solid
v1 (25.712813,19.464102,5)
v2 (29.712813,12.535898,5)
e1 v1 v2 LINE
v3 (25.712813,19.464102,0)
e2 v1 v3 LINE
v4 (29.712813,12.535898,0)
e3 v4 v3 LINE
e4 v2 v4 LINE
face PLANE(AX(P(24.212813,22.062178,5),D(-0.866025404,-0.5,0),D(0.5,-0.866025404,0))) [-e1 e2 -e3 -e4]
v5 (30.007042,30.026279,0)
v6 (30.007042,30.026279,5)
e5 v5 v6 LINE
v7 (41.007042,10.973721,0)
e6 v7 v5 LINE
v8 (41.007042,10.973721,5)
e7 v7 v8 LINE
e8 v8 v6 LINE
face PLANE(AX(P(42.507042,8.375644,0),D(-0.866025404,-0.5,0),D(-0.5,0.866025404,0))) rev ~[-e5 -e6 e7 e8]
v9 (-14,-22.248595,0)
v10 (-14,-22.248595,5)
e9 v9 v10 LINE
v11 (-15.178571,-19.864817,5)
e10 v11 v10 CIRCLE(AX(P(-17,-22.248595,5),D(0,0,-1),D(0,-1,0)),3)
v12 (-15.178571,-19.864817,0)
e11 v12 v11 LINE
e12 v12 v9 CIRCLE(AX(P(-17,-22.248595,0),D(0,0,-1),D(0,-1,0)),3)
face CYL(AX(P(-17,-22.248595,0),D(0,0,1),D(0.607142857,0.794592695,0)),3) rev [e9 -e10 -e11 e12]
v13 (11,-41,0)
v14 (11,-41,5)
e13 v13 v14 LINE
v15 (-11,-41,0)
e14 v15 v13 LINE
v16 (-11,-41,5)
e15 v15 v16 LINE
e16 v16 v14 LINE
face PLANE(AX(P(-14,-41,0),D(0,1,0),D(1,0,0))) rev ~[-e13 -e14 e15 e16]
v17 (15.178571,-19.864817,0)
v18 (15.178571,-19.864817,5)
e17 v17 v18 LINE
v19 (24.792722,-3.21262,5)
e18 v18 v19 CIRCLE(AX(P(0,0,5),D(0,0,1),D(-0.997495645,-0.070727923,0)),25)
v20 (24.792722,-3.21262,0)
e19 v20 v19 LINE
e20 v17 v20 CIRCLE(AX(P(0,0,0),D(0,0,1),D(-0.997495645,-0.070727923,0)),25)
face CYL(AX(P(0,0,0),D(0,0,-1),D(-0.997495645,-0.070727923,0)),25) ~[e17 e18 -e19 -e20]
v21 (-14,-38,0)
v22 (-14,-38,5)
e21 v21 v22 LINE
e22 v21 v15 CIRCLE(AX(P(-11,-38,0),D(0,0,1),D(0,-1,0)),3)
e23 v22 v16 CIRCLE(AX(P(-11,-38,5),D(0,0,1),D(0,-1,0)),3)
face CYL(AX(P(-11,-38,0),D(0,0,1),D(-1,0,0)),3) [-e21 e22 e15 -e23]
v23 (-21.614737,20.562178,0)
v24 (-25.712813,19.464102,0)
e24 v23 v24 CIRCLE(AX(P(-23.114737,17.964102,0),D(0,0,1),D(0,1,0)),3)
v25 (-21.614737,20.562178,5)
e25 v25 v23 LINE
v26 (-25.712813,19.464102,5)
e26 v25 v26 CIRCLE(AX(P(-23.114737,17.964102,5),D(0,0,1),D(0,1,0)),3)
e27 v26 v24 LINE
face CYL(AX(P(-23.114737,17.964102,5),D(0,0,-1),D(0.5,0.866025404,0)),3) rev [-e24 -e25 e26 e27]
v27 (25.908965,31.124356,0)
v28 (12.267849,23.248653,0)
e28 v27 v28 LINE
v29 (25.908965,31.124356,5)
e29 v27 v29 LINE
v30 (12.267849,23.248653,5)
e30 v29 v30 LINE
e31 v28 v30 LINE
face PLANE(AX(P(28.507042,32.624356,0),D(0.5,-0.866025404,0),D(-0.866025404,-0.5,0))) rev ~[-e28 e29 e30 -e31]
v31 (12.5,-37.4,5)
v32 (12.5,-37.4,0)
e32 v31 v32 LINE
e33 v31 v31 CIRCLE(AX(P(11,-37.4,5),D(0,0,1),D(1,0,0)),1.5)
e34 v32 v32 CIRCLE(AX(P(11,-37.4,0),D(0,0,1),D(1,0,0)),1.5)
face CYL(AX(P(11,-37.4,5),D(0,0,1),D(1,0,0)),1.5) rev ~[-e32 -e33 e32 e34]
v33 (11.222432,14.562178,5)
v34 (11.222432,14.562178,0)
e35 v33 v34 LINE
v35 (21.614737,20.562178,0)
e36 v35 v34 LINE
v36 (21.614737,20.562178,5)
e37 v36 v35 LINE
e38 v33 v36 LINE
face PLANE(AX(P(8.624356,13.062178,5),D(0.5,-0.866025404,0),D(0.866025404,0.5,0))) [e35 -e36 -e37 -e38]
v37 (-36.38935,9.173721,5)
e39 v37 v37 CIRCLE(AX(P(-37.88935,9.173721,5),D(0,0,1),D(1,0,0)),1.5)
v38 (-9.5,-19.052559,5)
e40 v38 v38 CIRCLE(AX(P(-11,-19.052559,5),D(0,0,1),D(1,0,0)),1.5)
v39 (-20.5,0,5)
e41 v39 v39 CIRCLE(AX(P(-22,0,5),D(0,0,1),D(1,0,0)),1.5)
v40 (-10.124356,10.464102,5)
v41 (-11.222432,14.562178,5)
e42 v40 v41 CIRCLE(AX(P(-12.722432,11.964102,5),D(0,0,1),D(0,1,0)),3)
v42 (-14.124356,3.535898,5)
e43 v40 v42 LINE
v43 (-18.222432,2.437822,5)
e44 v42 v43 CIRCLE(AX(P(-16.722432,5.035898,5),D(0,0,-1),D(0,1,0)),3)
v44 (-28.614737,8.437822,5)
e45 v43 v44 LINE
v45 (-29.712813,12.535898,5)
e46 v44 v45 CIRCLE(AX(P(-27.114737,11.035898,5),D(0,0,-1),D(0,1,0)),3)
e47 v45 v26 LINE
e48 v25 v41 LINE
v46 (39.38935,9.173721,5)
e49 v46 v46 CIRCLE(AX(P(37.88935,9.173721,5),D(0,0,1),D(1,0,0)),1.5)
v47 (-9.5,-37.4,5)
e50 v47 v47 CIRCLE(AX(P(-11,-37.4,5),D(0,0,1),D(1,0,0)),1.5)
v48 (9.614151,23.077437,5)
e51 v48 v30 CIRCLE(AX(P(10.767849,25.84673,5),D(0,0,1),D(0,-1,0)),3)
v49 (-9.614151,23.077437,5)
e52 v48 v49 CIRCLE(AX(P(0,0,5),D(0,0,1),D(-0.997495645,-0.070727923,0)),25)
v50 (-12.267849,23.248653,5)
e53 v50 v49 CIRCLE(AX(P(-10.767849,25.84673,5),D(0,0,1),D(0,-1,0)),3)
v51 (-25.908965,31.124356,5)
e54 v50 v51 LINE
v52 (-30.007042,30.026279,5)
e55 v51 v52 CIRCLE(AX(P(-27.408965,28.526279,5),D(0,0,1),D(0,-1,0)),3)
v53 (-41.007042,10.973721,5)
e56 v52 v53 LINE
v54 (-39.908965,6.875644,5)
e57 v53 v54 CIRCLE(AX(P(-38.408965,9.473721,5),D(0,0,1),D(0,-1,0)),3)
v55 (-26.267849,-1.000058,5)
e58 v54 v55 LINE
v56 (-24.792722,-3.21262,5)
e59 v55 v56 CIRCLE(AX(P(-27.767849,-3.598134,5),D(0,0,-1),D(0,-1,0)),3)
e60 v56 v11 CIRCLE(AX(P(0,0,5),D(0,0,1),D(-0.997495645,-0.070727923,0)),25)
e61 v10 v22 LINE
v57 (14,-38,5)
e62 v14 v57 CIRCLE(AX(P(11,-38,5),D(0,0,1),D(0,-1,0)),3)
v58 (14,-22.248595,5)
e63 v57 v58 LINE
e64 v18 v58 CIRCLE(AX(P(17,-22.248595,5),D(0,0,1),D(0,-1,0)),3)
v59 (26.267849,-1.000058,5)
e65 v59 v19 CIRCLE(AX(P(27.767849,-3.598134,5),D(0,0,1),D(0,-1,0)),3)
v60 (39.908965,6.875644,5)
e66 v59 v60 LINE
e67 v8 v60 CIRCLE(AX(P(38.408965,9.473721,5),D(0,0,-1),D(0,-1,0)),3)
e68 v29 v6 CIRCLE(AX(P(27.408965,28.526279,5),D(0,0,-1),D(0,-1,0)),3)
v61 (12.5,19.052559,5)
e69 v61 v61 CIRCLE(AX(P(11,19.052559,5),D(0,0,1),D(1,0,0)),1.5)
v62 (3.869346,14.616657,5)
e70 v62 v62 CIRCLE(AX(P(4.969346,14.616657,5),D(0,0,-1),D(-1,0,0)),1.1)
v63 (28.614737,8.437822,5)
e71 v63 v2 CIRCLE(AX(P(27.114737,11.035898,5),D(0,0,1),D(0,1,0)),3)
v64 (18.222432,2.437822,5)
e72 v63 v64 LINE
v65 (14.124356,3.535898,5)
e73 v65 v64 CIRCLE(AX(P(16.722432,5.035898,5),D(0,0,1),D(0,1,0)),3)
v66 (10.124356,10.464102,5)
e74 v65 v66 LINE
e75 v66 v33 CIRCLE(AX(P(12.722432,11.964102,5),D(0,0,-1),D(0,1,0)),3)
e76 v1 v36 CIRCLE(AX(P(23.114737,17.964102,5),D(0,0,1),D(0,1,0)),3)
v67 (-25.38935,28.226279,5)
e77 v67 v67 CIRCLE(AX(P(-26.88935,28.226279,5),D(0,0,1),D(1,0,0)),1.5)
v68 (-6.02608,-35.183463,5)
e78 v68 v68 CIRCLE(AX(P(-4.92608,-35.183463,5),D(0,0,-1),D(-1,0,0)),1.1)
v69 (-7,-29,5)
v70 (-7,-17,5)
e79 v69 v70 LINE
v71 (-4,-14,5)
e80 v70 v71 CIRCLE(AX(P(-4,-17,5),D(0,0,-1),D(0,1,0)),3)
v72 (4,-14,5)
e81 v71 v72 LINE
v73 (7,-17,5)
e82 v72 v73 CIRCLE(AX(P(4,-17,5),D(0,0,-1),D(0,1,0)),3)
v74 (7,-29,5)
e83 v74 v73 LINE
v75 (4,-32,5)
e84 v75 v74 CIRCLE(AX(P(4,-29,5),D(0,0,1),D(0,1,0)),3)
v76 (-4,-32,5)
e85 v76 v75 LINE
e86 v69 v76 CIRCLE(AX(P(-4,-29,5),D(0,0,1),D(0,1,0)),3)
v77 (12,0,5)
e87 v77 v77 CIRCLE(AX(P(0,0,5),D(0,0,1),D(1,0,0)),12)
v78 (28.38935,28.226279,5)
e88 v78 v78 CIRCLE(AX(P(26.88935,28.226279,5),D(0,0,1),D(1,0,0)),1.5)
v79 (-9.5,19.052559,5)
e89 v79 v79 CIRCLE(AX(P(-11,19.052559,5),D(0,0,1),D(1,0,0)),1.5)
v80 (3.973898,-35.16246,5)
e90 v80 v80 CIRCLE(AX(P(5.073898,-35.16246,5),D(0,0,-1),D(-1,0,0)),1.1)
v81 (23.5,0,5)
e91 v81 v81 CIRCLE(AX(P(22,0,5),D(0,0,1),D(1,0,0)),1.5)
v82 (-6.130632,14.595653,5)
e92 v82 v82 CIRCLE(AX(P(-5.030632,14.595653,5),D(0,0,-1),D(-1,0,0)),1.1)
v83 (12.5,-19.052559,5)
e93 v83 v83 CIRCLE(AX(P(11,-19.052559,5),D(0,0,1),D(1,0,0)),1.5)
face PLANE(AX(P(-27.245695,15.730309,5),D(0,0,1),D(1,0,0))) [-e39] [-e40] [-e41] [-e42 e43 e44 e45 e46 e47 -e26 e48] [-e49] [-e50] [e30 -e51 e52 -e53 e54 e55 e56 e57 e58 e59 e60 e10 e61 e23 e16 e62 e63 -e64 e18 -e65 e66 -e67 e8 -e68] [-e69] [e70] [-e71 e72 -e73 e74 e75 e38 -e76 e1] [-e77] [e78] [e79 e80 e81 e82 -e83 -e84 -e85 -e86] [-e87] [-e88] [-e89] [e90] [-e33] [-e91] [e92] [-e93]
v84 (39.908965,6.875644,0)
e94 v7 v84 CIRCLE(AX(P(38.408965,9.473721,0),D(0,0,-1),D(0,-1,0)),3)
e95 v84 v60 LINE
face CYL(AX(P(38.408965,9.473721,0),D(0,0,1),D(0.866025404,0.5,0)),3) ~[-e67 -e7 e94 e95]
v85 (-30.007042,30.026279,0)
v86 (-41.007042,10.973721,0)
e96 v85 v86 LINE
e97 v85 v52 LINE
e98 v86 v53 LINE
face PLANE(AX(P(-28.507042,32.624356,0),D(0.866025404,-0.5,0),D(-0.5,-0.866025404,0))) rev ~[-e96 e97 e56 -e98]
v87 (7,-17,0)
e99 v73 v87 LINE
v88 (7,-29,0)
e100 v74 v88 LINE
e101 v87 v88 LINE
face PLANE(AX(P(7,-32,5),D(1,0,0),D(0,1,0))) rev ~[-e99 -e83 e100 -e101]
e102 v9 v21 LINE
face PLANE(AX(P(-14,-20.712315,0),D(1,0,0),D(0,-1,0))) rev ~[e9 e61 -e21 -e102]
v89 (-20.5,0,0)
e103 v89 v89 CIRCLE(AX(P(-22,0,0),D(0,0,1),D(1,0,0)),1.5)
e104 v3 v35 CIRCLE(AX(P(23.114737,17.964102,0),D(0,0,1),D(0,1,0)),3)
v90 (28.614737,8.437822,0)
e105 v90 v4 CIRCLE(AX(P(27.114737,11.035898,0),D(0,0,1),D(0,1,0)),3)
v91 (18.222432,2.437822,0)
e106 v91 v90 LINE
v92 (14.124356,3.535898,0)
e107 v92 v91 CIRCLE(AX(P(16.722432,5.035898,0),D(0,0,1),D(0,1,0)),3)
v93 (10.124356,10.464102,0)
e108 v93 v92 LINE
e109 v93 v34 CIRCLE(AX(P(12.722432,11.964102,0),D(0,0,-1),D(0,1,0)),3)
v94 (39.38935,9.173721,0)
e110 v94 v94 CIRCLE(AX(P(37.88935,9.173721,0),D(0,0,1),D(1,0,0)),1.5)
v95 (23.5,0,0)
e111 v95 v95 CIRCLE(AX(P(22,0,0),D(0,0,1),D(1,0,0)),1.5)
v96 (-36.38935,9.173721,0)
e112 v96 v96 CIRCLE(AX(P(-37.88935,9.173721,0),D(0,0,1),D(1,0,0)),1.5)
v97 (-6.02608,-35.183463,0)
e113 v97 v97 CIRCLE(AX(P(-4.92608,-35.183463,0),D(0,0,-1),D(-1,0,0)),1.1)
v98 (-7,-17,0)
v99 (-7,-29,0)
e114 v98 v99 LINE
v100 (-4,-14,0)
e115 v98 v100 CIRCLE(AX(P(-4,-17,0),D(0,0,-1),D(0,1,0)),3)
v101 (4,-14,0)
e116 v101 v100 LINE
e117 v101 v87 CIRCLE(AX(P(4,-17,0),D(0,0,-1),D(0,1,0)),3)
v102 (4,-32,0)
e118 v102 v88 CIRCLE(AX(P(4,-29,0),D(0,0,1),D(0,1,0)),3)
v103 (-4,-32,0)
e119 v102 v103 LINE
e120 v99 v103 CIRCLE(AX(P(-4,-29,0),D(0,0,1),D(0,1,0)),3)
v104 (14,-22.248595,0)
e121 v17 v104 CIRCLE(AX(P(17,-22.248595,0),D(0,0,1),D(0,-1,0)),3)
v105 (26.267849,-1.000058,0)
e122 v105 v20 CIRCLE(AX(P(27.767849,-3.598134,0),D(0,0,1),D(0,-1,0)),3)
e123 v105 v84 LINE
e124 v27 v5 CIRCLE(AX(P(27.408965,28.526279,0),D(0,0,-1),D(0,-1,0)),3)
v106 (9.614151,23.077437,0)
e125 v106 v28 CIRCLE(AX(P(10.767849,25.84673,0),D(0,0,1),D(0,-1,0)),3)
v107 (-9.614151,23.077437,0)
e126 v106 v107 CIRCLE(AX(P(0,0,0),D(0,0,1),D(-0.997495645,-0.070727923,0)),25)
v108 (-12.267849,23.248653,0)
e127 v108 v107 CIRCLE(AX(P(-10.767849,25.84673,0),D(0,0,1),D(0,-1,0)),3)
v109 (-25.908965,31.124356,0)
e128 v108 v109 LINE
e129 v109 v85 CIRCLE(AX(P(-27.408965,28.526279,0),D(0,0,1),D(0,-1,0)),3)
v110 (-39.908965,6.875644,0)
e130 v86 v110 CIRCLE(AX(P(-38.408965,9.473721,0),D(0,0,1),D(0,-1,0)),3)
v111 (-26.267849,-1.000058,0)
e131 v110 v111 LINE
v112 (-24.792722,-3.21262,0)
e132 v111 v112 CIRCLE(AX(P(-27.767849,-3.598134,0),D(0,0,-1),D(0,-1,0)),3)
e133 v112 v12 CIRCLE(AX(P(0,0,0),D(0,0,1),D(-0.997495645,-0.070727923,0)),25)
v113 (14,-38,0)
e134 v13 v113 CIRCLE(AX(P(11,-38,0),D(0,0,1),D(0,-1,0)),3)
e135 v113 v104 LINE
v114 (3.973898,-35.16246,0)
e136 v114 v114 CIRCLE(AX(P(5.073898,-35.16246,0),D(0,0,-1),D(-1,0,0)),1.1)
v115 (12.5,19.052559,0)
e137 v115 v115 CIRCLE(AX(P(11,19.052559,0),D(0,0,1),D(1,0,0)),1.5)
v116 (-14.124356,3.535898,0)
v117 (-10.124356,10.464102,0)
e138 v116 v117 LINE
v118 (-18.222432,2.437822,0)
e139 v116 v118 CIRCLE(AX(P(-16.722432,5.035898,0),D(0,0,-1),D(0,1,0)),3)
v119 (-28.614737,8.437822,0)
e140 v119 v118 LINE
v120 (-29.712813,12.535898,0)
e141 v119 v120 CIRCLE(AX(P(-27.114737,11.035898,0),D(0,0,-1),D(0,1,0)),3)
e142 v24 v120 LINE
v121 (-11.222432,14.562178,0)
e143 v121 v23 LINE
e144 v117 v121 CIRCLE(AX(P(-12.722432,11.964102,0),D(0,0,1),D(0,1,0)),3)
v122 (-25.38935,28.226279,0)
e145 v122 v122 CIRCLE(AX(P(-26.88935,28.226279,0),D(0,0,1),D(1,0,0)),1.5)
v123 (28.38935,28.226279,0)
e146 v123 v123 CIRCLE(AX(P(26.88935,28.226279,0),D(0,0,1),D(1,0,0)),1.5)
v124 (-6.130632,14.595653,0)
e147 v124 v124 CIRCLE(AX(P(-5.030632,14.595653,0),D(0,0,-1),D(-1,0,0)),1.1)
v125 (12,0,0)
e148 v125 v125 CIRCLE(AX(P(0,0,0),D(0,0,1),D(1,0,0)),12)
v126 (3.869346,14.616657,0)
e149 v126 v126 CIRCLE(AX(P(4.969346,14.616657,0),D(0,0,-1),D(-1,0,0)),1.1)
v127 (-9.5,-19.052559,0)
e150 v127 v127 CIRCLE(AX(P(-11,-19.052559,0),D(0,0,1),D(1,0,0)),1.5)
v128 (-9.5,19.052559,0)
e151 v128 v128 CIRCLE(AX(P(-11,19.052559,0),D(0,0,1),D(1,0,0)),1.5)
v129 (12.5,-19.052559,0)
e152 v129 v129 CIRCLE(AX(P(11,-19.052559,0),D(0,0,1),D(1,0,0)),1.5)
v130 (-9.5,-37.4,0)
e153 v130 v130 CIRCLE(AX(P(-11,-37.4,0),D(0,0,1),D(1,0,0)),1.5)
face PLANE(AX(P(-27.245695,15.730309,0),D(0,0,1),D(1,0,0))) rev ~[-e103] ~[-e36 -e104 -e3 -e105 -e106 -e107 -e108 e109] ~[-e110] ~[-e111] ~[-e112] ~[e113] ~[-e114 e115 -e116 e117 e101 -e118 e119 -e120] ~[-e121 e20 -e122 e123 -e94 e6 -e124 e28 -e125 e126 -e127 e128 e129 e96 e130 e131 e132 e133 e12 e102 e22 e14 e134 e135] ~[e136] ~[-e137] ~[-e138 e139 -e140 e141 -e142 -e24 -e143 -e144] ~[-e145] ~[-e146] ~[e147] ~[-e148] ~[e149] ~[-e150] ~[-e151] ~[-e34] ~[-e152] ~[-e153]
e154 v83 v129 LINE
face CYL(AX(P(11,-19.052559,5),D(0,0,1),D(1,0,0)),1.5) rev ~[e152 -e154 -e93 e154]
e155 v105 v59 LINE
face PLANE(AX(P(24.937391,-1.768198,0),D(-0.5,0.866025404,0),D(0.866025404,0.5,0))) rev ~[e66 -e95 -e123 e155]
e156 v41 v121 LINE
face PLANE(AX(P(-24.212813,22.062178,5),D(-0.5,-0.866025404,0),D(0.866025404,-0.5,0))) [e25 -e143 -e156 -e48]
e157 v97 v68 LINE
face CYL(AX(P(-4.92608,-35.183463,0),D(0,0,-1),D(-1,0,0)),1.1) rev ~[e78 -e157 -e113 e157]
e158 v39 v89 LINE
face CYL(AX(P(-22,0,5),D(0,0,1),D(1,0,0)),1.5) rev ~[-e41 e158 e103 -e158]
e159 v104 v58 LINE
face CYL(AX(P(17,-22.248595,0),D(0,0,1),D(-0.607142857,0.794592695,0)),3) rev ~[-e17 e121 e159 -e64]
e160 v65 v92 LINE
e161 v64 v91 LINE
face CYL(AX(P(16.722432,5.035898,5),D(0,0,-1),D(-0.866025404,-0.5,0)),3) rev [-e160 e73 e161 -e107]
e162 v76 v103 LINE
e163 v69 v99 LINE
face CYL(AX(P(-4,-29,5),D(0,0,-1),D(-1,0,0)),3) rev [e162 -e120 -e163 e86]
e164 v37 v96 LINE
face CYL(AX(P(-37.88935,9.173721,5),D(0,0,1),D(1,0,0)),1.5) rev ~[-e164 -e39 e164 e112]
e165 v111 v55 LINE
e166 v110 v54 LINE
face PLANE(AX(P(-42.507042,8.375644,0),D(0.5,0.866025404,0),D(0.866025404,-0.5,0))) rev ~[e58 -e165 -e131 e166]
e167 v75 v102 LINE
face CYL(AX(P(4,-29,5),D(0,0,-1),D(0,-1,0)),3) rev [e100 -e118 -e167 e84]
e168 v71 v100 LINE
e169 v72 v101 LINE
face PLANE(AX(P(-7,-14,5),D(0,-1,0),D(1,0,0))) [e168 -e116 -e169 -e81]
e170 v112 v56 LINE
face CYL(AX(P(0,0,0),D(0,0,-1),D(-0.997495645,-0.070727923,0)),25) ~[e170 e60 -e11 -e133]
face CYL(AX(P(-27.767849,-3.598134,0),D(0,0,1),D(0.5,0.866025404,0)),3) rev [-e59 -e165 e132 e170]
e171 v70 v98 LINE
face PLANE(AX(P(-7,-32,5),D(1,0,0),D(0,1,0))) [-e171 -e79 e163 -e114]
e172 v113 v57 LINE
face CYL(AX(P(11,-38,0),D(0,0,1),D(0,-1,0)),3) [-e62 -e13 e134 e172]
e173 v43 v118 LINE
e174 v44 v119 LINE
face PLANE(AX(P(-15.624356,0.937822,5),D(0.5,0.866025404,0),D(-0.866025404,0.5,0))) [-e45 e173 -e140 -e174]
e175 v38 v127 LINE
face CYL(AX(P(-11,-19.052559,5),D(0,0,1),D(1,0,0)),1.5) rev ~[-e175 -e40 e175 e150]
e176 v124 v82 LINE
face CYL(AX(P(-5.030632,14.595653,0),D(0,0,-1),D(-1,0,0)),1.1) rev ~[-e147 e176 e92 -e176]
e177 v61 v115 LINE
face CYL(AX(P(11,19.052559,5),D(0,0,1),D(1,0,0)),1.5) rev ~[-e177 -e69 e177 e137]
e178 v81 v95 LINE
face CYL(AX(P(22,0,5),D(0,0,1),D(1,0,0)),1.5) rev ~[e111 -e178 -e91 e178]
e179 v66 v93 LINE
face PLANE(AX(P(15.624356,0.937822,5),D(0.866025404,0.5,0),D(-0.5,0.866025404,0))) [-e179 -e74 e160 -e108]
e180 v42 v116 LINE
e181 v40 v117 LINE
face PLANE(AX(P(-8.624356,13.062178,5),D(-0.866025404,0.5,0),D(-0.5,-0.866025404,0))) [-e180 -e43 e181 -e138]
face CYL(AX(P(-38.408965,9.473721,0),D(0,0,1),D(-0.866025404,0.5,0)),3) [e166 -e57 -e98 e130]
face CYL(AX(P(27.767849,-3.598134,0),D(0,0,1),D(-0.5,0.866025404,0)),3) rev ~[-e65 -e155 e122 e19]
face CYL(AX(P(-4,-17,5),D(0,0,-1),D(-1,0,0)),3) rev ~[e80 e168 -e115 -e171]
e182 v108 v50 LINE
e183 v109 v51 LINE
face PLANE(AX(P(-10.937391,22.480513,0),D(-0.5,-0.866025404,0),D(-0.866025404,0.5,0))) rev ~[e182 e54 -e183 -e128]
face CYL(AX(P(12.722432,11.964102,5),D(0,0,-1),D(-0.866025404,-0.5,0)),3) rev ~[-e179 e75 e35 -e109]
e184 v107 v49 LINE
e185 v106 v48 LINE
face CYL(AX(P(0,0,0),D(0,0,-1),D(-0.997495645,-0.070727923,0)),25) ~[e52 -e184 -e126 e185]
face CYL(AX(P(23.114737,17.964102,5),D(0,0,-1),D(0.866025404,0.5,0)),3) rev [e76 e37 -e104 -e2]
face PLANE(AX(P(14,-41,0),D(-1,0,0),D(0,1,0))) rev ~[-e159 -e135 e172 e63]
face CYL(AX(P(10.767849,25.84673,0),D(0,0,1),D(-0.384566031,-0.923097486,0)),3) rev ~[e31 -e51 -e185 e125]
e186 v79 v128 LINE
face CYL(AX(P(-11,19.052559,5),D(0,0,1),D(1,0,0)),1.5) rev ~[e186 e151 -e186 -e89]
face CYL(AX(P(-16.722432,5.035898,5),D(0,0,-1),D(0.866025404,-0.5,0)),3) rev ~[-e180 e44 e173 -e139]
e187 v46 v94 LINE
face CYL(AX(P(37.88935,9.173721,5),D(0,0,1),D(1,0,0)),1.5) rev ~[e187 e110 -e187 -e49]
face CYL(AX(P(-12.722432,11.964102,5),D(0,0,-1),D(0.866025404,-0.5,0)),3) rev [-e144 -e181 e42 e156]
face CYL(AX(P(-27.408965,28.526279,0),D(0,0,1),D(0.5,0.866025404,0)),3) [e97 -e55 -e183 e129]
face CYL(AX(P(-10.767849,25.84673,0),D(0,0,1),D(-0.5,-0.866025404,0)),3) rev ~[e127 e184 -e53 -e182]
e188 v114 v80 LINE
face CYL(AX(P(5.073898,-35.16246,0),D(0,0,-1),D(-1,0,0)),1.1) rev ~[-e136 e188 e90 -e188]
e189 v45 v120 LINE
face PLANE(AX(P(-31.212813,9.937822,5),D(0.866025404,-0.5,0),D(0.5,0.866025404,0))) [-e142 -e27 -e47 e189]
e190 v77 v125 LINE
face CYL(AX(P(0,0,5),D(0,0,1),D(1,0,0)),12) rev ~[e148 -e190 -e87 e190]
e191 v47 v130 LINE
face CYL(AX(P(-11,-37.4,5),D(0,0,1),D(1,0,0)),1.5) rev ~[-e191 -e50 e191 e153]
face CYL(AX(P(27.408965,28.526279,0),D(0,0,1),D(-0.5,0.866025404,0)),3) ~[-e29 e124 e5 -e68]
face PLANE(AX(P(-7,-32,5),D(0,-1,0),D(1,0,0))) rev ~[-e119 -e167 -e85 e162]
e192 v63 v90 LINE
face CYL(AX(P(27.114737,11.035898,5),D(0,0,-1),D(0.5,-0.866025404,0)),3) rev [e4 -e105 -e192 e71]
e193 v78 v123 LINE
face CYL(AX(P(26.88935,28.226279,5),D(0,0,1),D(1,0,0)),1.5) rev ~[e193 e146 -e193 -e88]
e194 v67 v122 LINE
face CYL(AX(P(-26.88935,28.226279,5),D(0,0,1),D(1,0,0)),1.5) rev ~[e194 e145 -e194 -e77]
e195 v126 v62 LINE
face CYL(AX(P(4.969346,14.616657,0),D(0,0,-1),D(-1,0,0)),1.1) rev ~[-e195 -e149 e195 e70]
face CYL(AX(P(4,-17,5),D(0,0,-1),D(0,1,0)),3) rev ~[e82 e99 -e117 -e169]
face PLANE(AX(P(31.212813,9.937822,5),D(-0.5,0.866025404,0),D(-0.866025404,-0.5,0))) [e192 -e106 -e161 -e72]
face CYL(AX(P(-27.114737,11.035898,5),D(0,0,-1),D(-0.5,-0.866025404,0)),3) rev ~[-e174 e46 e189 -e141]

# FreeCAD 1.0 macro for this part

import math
import FreeCAD as App
import Part
import Sketcher
from FreeCAD import Vector
Q = App.Units.Quantity


def edges_at(feature, points):
    """Names of the edges that pass closest to the given points."""
    edges = feature.Shape.Edges
    near = lambda p: min(range(len(edges)), key=lambda i: edges[i].distToShape(Part.Vertex(*p))[0])
    return sorted({f"Edge{near(p) + 1}" for p in points})


def add_polygon(sketch, points):
    """Adds a closed chain of lines whose ends are joined by coincident constraints."""
    first, n = sketch.GeometryCount, len(points)
    for a, b in zip(points, points[1:] + points[:1]):
        sketch.addGeometry(Part.LineSegment(App.Vector(*a, 0), App.Vector(*b, 0)), False)
    for i in range(n):
        sketch.addConstraint(Sketcher.Constraint("Coincident", first + i, 2, first + (i + 1) % n, 1))

doc = App.newDocument("Part")
body = doc.addObject("PartDesign::Body", "Body")

# Sketch on XY plane
sketch1 = body.newObject("Sketcher::SketchObject", "Sketch")
sketch1.AttachmentSupport = (doc.getObject("XY_Plane"), [""])
sketch1.MapMode = "FlatFace"
sketch1.addGeometry(Part.LineSegment(Vector(-10.937391, 22.480513, 0), Vector(-28.507042, 32.624356, 0)), False)
sketch1.addGeometry(Part.LineSegment(Vector(-28.507042, 32.624356, 0), Vector(-42.507042, 8.375644, 0)), False)
sketch1.addGeometry(Part.LineSegment(Vector(-42.507042, 8.375644, 0), Vector(-24.937391, -1.768198, 0)), False)
sketch1.addGeometry(Part.ArcOfCircle(Part.Circle(Vector(0, 0, 0), Vector(0, 0, 1), 25), math.radians(-175.944202), math.radians(-124.055798)), False)
sketch1.addGeometry(Part.LineSegment(Vector(-14, -20.712315, 0), Vector(-14, -41, 0)), False)
sketch1.addGeometry(Part.LineSegment(Vector(-14, -41, 0), Vector(14, -41, 0)), False)
sketch1.addGeometry(Part.LineSegment(Vector(14, -41, 0), Vector(14, -20.712315, 0)), False)
sketch1.addGeometry(Part.ArcOfCircle(Part.Circle(Vector(0, 0, 0), Vector(0, 0, 1), 25), math.radians(-55.944202), math.radians(-4.055798)), False)
sketch1.addGeometry(Part.LineSegment(Vector(24.937391, -1.768198, 0), Vector(42.507042, 8.375644, 0)), False)
sketch1.addGeometry(Part.LineSegment(Vector(42.507042, 8.375644, 0), Vector(28.507042, 32.624356, 0)), False)
sketch1.addGeometry(Part.LineSegment(Vector(28.507042, 32.624356, 0), Vector(10.937391, 22.480513, 0)), False)
sketch1.addGeometry(Part.ArcOfCircle(Part.Circle(Vector(0, 0, 0), Vector(0, 0, 1), 25), math.radians(64.055798), math.radians(115.944202)), False)
sketch1.addConstraint(Sketcher.Constraint("Coincident", 0, 2, 1, 1))
sketch1.addConstraint(Sketcher.Constraint("Coincident", 1, 2, 2, 1))
sketch1.addConstraint(Sketcher.Constraint("Coincident", 2, 2, 3, 1))
sketch1.addConstraint(Sketcher.Constraint("Coincident", 3, 2, 4, 1))
sketch1.addConstraint(Sketcher.Constraint("Coincident", 4, 2, 5, 1))
sketch1.addConstraint(Sketcher.Constraint("Coincident", 5, 2, 6, 1))
sketch1.addConstraint(Sketcher.Constraint("Coincident", 6, 2, 7, 1))
sketch1.addConstraint(Sketcher.Constraint("Coincident", 7, 2, 8, 1))
sketch1.addConstraint(Sketcher.Constraint("Coincident", 8, 2, 9, 1))
sketch1.addConstraint(Sketcher.Constraint("Coincident", 9, 2, 10, 1))
sketch1.addConstraint(Sketcher.Constraint("Coincident", 10, 2, 11, 1))
sketch1.addConstraint(Sketcher.Constraint("Coincident", 11, 2, 0, 1))
sketch1.addConstraint(Sketcher.Constraint("Vertical", 4))
sketch1.addConstraint(Sketcher.Constraint("Horizontal", 5))
sketch1.addConstraint(Sketcher.Constraint("Vertical", 6))
sketch1.addConstraint(Sketcher.Constraint("Coincident", 3, 3, -1, 1))
sketch1.addConstraint(Sketcher.Constraint("Coincident", 7, 3, -1, 1))
sketch1.addConstraint(Sketcher.Constraint("Coincident", 11, 3, -1, 1))
sketch1.addConstraint(Sketcher.Constraint("Equal", 3, 7))
sketch1.addConstraint(Sketcher.Constraint("Equal", 7, 11))
sketch1.addConstraint(Sketcher.Constraint("Symmetric", 1, 2, 8, 2, -2))
sketch1.addConstraint(Sketcher.Constraint("Symmetric", 0, 2, 9, 2, -2))
sketch1.addConstraint(Sketcher.Constraint("Perpendicular", 0, 1))
sketch1.addConstraint(Sketcher.Constraint("Perpendicular", 1, 2))
sketch1.addConstraint(Sketcher.Constraint("Perpendicular", 8, 9))
sketch1.addConstraint(Sketcher.Constraint("Perpendicular", 9, 10))
sketch1.addConstraint(Sketcher.Constraint("Horizontal", 3, 2, 6, 2))
sketch1.addConstraint(Sketcher.Constraint("Equal", 0, 2))
sketch1.addConstraint(Sketcher.Constraint("Radius", 3, Q("25 mm")))
sketch1.addConstraint(Sketcher.Constraint("DistanceX", 5, 1, 5, 2, Q("28 mm")))
sketch1.addConstraint(Sketcher.Constraint("Angle", 0, Q("150 deg")))
sketch1.addConstraint(Sketcher.Constraint("Distance", 1, Q("28 mm")))
sketch1.addConstraint(Sketcher.Constraint("DistanceY", 4, 2, -1, 1, Q("41 mm")))
sketch1.addConstraint(Sketcher.Constraint("DistanceX", 0, 2, -1, 1, Q("28.507042 mm")))
pad1 = body.newObject("PartDesign::Pad", "Pad")
pad1.Profile = sketch1
pad1.Length = 5

# Sketch on XY plane
sketch2 = body.newObject("Sketcher::SketchObject", "Sketch001")
sketch2.AttachmentSupport = (doc.getObject("XY_Plane"), [""])
sketch2.MapMode = "FlatFace"
sketch2.AttachmentOffset = App.Placement(Vector(0, 0, 5), App.Rotation())
sketch2.addGeometry(Part.Circle(Vector(11, -37.4, 0), Vector(0, 0, 1), 1.5), False)
sketch2.addConstraint(Sketcher.Constraint("Diameter", 0, Q("3 mm")))
sketch2.addConstraint(Sketcher.Constraint("DistanceX", -1, 1, 0, 3, Q("11 mm")))
sketch2.addConstraint(Sketcher.Constraint("DistanceY", 0, 3, -1, 1, Q("37.4 mm")))
pocket1 = body.newObject("PartDesign::Pocket", "Pocket")
pocket1.Profile = sketch2
pocket1.Type = "UpToFirst"

# Sketch on XY plane
sketch3 = body.newObject("Sketcher::SketchObject", "Sketch002")
sketch3.AttachmentSupport = (doc.getObject("XY_Plane"), [""])
sketch3.MapMode = "FlatFace"
sketch3.AttachmentOffset = App.Placement(Vector(0, 0, 5), App.Rotation())
sketch3.addGeometry(Part.Circle(Vector(-11, -37.4, 0), Vector(0, 0, 1), 1.5), False)
sketch3.addConstraint(Sketcher.Constraint("Diameter", 0, Q("3 mm")))
sketch3.addConstraint(Sketcher.Constraint("DistanceX", 0, 3, -1, 1, Q("11 mm")))
sketch3.addConstraint(Sketcher.Constraint("DistanceY", 0, 3, -1, 1, Q("37.4 mm")))
pocket2 = body.newObject("PartDesign::Pocket", "Pocket001")
pocket2.Profile = sketch3
pocket2.Type = "UpToFirst"

# Sketch on XY plane
sketch4 = body.newObject("Sketcher::SketchObject", "Sketch003")
sketch4.AttachmentSupport = (doc.getObject("XY_Plane"), [""])
sketch4.MapMode = "FlatFace"
sketch4.AttachmentOffset = App.Placement(Vector(0, 0, 5), App.Rotation())
sketch4.addGeometry(Part.Circle(Vector(-37.88935, 9.173721, 0), Vector(0, 0, 1), 1.5), False)
sketch4.addConstraint(Sketcher.Constraint("Diameter", 0, Q("3 mm")))
sketch4.addConstraint(Sketcher.Constraint("DistanceX", 0, 3, -1, 1, Q("37.88935 mm")))
sketch4.addConstraint(Sketcher.Constraint("DistanceY", -1, 1, 0, 3, Q("9.173721 mm")))
pocket3 = body.newObject("PartDesign::Pocket", "Pocket002")
pocket3.Profile = sketch4
pocket3.Type = "UpToFirst"

# Sketch on XY plane
sketch5 = body.newObject("Sketcher::SketchObject", "Sketch004")
sketch5.AttachmentSupport = (doc.getObject("XY_Plane"), [""])
sketch5.MapMode = "FlatFace"
sketch5.AttachmentOffset = App.Placement(Vector(0, 0, 5), App.Rotation())
sketch5.addGeometry(Part.Circle(Vector(-26.88935, 28.226279, 0), Vector(0, 0, 1), 1.5), False)
sketch5.addConstraint(Sketcher.Constraint("Diameter", 0, Q("3 mm")))
sketch5.addConstraint(Sketcher.Constraint("DistanceX", 0, 3, -1, 1, Q("26.88935 mm")))
sketch5.addConstraint(Sketcher.Constraint("DistanceY", -1, 1, 0, 3, Q("28.226279 mm")))
pocket4 = body.newObject("PartDesign::Pocket", "Pocket003")
pocket4.Profile = sketch5
pocket4.Type = "UpToFirst"

# Sketch on XY plane
sketch6 = body.newObject("Sketcher::SketchObject", "Sketch005")
sketch6.AttachmentSupport = (doc.getObject("XY_Plane"), [""])
sketch6.MapMode = "FlatFace"
sketch6.AttachmentOffset = App.Placement(Vector(0, 0, 5), App.Rotation())
sketch6.addGeometry(Part.Circle(Vector(26.88935, 28.226279, 0), Vector(0, 0, 1), 1.5), False)
sketch6.addConstraint(Sketcher.Constraint("Diameter", 0, Q("3 mm")))
sketch6.addConstraint(Sketcher.Constraint("DistanceX", -1, 1, 0, 3, Q("26.88935 mm")))
sketch6.addConstraint(Sketcher.Constraint("DistanceY", -1, 1, 0, 3, Q("28.226279 mm")))
pocket5 = body.newObject("PartDesign::Pocket", "Pocket004")
pocket5.Profile = sketch6
pocket5.Type = "UpToFirst"

# Sketch on XY plane
sketch7 = body.newObject("Sketcher::SketchObject", "Sketch006")
sketch7.AttachmentSupport = (doc.getObject("XY_Plane"), [""])
sketch7.MapMode = "FlatFace"
sketch7.AttachmentOffset = App.Placement(Vector(0, 0, 5), App.Rotation())
sketch7.addGeometry(Part.Circle(Vector(37.88935, 9.173721, 0), Vector(0, 0, 1), 1.5), False)
sketch7.addConstraint(Sketcher.Constraint("Diameter", 0, Q("3 mm")))
sketch7.addConstraint(Sketcher.Constraint("DistanceX", -1, 1, 0, 3, Q("37.88935 mm")))
sketch7.addConstraint(Sketcher.Constraint("DistanceY", -1, 1, 0, 3, Q("9.173721 mm")))
pocket6 = body.newObject("PartDesign::Pocket", "Pocket005")
pocket6.Profile = sketch7
pocket6.Type = "UpToFirst"
doc.recompute()

fillet = body.newObject("PartDesign::Fillet", "Fillet")
fillet.Base = (pocket6, edges_at(pocket6, [
    (-42.507, 8.376, 2.5),
    (-28.507, 32.624, 2.5),
    (28.507, 32.624, 2.5),
    (42.507, 8.376, 2.5),
    (14, -41, 2.5),
    (-14, -41, 2.5),
]))
fillet.Radius = 3

# Sketch on XY plane
sketch8 = body.newObject("Sketcher::SketchObject", "Sketch007")
sketch8.AttachmentSupport = (doc.getObject("XY_Plane"), [""])
sketch8.MapMode = "FlatFace"
sketch8.addGeometry(Part.Circle(Vector(-5.030632, 14.595653, 0), Vector(0, 0, 1), 1.1), False)
sketch8.addConstraint(Sketcher.Constraint("Diameter", 0, Q("2.2 mm")))
sketch8.addConstraint(Sketcher.Constraint("DistanceX", 0, 3, -1, 1, Q("5.030632 mm")))
sketch8.addConstraint(Sketcher.Constraint("DistanceY", -1, 1, 0, 3, Q("14.595653 mm")))
pocket7 = body.newObject("PartDesign::Pocket", "Pocket006")
pocket7.Profile = sketch8
pocket7.Type = "UpToFirst"
pocket7.Reversed = True

# Sketch on XY plane
sketch9 = body.newObject("Sketcher::SketchObject", "Sketch008")
sketch9.AttachmentSupport = (doc.getObject("XY_Plane"), [""])
sketch9.MapMode = "FlatFace"
sketch9.addGeometry(Part.Circle(Vector(4.969346, 14.616657, 0), Vector(0, 0, 1), 1.1), False)
sketch9.addConstraint(Sketcher.Constraint("Diameter", 0, Q("2.2 mm")))
sketch9.addConstraint(Sketcher.Constraint("DistanceX", -1, 1, 0, 3, Q("4.969346 mm")))
sketch9.addConstraint(Sketcher.Constraint("DistanceY", -1, 1, 0, 3, Q("14.616657 mm")))
pocket8 = body.newObject("PartDesign::Pocket", "Pocket007")
pocket8.Profile = sketch9
pocket8.Type = "UpToFirst"
pocket8.Reversed = True

# Sketch on XY plane
sketch10 = body.newObject("Sketcher::SketchObject", "Sketch009")
sketch10.AttachmentSupport = (doc.getObject("XY_Plane"), [""])
sketch10.MapMode = "FlatFace"
sketch10.addGeometry(Part.Circle(Vector(-4.92608, -35.183463, 0), Vector(0, 0, 1), 1.1), False)
sketch10.addConstraint(Sketcher.Constraint("Diameter", 0, Q("2.2 mm")))
sketch10.addConstraint(Sketcher.Constraint("DistanceX", 0, 3, -1, 1, Q("4.92608 mm")))
sketch10.addConstraint(Sketcher.Constraint("DistanceY", 0, 3, -1, 1, Q("35.183463 mm")))
pocket9 = body.newObject("PartDesign::Pocket", "Pocket008")
pocket9.Profile = sketch10
pocket9.Type = "UpToFirst"
pocket9.Reversed = True

# Sketch on XY plane
sketch11 = body.newObject("Sketcher::SketchObject", "Sketch010")
sketch11.AttachmentSupport = (doc.getObject("XY_Plane"), [""])
sketch11.MapMode = "FlatFace"
sketch11.addGeometry(Part.Circle(Vector(5.073898, -35.16246, 0), Vector(0, 0, 1), 1.1), False)
sketch11.addConstraint(Sketcher.Constraint("Diameter", 0, Q("2.2 mm")))
sketch11.addConstraint(Sketcher.Constraint("DistanceX", -1, 1, 0, 3, Q("5.073898 mm")))
sketch11.addConstraint(Sketcher.Constraint("DistanceY", 0, 3, -1, 1, Q("35.16246 mm")))
pocket10 = body.newObject("PartDesign::Pocket", "Pocket009")
pocket10.Profile = sketch11
pocket10.Type = "UpToFirst"
pocket10.Reversed = True

# Sketch on XY plane
sketch12 = body.newObject("Sketcher::SketchObject", "Sketch011")
sketch12.AttachmentSupport = (doc.getObject("XY_Plane"), [""])
sketch12.MapMode = "FlatFace"
sketch12.AttachmentOffset = App.Placement(Vector(0, 0, 5), App.Rotation())
sketch12.addGeometry(Part.Circle(Vector(22, 0, 0), Vector(0, 0, 1), 1.5), False)
sketch12.addConstraint(Sketcher.Constraint("PointOnObject", 0, 3, -1))
sketch12.addConstraint(Sketcher.Constraint("Diameter", 0, Q("3 mm")))
sketch12.addConstraint(Sketcher.Constraint("DistanceX", -1, 1, 0, 3, Q("22 mm")))
pocket11 = body.newObject("PartDesign::Pocket", "Pocket010")
pocket11.Profile = sketch12
pocket11.Type = "UpToFirst"

# Sketch on XY plane
sketch13 = body.newObject("Sketcher::SketchObject", "Sketch012")
sketch13.AttachmentSupport = (doc.getObject("XY_Plane"), [""])
sketch13.MapMode = "FlatFace"
sketch13.AttachmentOffset = App.Placement(Vector(0, 0, 5), App.Rotation())
sketch13.addGeometry(Part.Circle(Vector(11, -19.052559, 0), Vector(0, 0, 1), 1.5), False)
sketch13.addConstraint(Sketcher.Constraint("Diameter", 0, Q("3 mm")))
sketch13.addConstraint(Sketcher.Constraint("DistanceX", -1, 1, 0, 3, Q("11 mm")))
sketch13.addConstraint(Sketcher.Constraint("DistanceY", 0, 3, -1, 1, Q("19.052559 mm")))
pocket12 = body.newObject("PartDesign::Pocket", "Pocket011")
pocket12.Profile = sketch13
pocket12.Type = "UpToFirst"

# Sketch on XY plane
sketch14 = body.newObject("Sketcher::SketchObject", "Sketch013")
sketch14.AttachmentSupport = (doc.getObject("XY_Plane"), [""])
sketch14.MapMode = "FlatFace"
sketch14.AttachmentOffset = App.Placement(Vector(0, 0, 5), App.Rotation())
sketch14.addGeometry(Part.Circle(Vector(-11, -19.052559, 0), Vector(0, 0, 1), 1.5), False)
sketch14.addConstraint(Sketcher.Constraint("Diameter", 0, Q("3 mm")))
sketch14.addConstraint(Sketcher.Constraint("DistanceX", 0, 3, -1, 1, Q("11 mm")))
sketch14.addConstraint(Sketcher.Constraint("DistanceY", 0, 3, -1, 1, Q("19.052559 mm")))
pocket13 = body.newObject("PartDesign::Pocket", "Pocket012")
pocket13.Profile = sketch14
pocket13.Type = "UpToFirst"

# Sketch on XY plane
sketch15 = body.newObject("Sketcher::SketchObject", "Sketch014")
sketch15.AttachmentSupport = (doc.getObject("XY_Plane"), [""])
sketch15.MapMode = "FlatFace"
sketch15.AttachmentOffset = App.Placement(Vector(0, 0, 5), App.Rotation())
sketch15.addGeometry(Part.Circle(Vector(-22, 0, 0), Vector(0, 0, 1), 1.5), False)
sketch15.addConstraint(Sketcher.Constraint("PointOnObject", 0, 3, -1))
sketch15.addConstraint(Sketcher.Constraint("Diameter", 0, Q("3 mm")))
sketch15.addConstraint(Sketcher.Constraint("DistanceX", 0, 3, -1, 1, Q("22 mm")))
pocket14 = body.newObject("PartDesign::Pocket", "Pocket013")
pocket14.Profile = sketch15
pocket14.Type = "UpToFirst"

# Sketch on XY plane
sketch16 = body.newObject("Sketcher::SketchObject", "Sketch015")
sketch16.AttachmentSupport = (doc.getObject("XY_Plane"), [""])
sketch16.MapMode = "FlatFace"
sketch16.AttachmentOffset = App.Placement(Vector(0, 0, 5), App.Rotation())
sketch16.addGeometry(Part.Circle(Vector(-11, 19.052559, 0), Vector(0, 0, 1), 1.5), False)
sketch16.addConstraint(Sketcher.Constraint("Diameter", 0, Q("3 mm")))
sketch16.addConstraint(Sketcher.Constraint("DistanceX", 0, 3, -1, 1, Q("11 mm")))
sketch16.addConstraint(Sketcher.Constraint("DistanceY", -1, 1, 0, 3, Q("19.052559 mm")))
pocket15 = body.newObject("PartDesign::Pocket", "Pocket014")
pocket15.Profile = sketch16
pocket15.Type = "UpToFirst"

# Sketch on XY plane
sketch17 = body.newObject("Sketcher::SketchObject", "Sketch016")
sketch17.AttachmentSupport = (doc.getObject("XY_Plane"), [""])
sketch17.MapMode = "FlatFace"
sketch17.AttachmentOffset = App.Placement(Vector(0, 0, 5), App.Rotation())
sketch17.addGeometry(Part.Circle(Vector(11, 19.052559, 0), Vector(0, 0, 1), 1.5), False)
sketch17.addConstraint(Sketcher.Constraint("Diameter", 0, Q("3 mm")))
sketch17.addConstraint(Sketcher.Constraint("DistanceX", -1, 1, 0, 3, Q("11 mm")))
sketch17.addConstraint(Sketcher.Constraint("DistanceY", -1, 1, 0, 3, Q("19.052559 mm")))
pocket16 = body.newObject("PartDesign::Pocket", "Pocket015")
pocket16.Profile = sketch17
pocket16.Type = "UpToFirst"
doc.recompute()

fillet2 = body.newObject("PartDesign::Fillet", "Fillet001")
fillet2.Base = (pocket16, edges_at(pocket16, [
    (-10.937, 22.481, 2.5),
    (10.937, 22.481, 2.5),
    (24.937, -1.768, 2.5),
    (14, -20.712, 2.5),
    (-14, -20.712, 2.5),
    (-24.937, -1.768, 2.5),
]))
fillet2.Radius = 3

# Sketch on XY plane
sketch18 = body.newObject("Sketcher::SketchObject", "Sketch017")
sketch18.AttachmentSupport = (doc.getObject("XY_Plane"), [""])
sketch18.MapMode = "FlatFace"
sketch18.AttachmentOffset = App.Placement(Vector(0, 0, 5), App.Rotation())
sketch18.addGeometry(Part.Circle(Vector(0, 0, 0), Vector(0, 0, 1), 12), False)
sketch18.addConstraint(Sketcher.Constraint("Coincident", 0, 3, -1, 1))
sketch18.addConstraint(Sketcher.Constraint("Diameter", 0, Q("24 mm")))
pocket17 = body.newObject("PartDesign::Pocket", "Pocket016")
pocket17.Profile = sketch18
pocket17.Type = "UpToFirst"

# Sketch on XY plane
sketch19 = body.newObject("Sketcher::SketchObject", "Sketch018")
sketch19.AttachmentSupport = (doc.getObject("XY_Plane"), [""])
sketch19.MapMode = "FlatFace"
sketch19.AttachmentOffset = App.Placement(Vector(0, 0, 5), App.Rotation())
add_polygon(sketch19, [(-15.624356, 0.937822), (-8.624356, 13.062178), (-24.212813, 22.062178), (-31.212813, 9.937822)])  # lines 0-3
sketch19.addConstraint(Sketcher.Constraint("Perpendicular", 0, 1))
sketch19.addConstraint(Sketcher.Constraint("Perpendicular", 1, 2))
sketch19.addConstraint(Sketcher.Constraint("Perpendicular", 2, 3))
sketch19.addConstraint(Sketcher.Constraint("Angle", 0, Q("60 deg")))
sketch19.addConstraint(Sketcher.Constraint("Distance", 0, Q("14 mm")))
sketch19.addConstraint(Sketcher.Constraint("Distance", 1, Q("18 mm")))
sketch19.addConstraint(Sketcher.Constraint("DistanceX", 0, 2, -1, 1, Q("8.624356 mm")))
sketch19.addConstraint(Sketcher.Constraint("DistanceY", -1, 1, 0, 2, Q("13.062178 mm")))
pocket18 = body.newObject("PartDesign::Pocket", "Pocket017")
pocket18.Profile = sketch19
pocket18.Type = "UpToFirst"

# Sketch on XY plane
sketch20 = body.newObject("Sketcher::SketchObject", "Sketch019")
sketch20.AttachmentSupport = (doc.getObject("XY_Plane"), [""])
sketch20.MapMode = "FlatFace"
sketch20.AttachmentOffset = App.Placement(Vector(0, 0, 5), App.Rotation())
add_polygon(sketch20, [(-7, -14), (-7, -32), (7, -32), (7, -14)])  # lines 0-3
sketch20.addConstraint(Sketcher.Constraint("Vertical", 0))
sketch20.addConstraint(Sketcher.Constraint("Horizontal", 1))
sketch20.addConstraint(Sketcher.Constraint("Vertical", 2))
sketch20.addConstraint(Sketcher.Constraint("Horizontal", 3))
sketch20.addConstraint(Sketcher.Constraint("DistanceX", 1, 1, 1, 2, Q("14 mm")))
sketch20.addConstraint(Sketcher.Constraint("DistanceY", 0, 2, 0, 1, Q("18 mm")))
sketch20.addConstraint(Sketcher.Constraint("DistanceX", 0, 2, -1, 1, Q("7 mm")))
sketch20.addConstraint(Sketcher.Constraint("DistanceY", 0, 2, -1, 1, Q("32 mm")))
pocket19 = body.newObject("PartDesign::Pocket", "Pocket018")
pocket19.Profile = sketch20
pocket19.Type = "UpToFirst"

# Sketch on XY plane
sketch21 = body.newObject("Sketcher::SketchObject", "Sketch020")
sketch21.AttachmentSupport = (doc.getObject("XY_Plane"), [""])
sketch21.MapMode = "FlatFace"
sketch21.AttachmentOffset = App.Placement(Vector(0, 0, 5), App.Rotation())
add_polygon(sketch21, [(8.624356, 13.062178), (15.624356, 0.937822), (31.212813, 9.937822), (24.212813, 22.062178)])  # lines 0-3
sketch21.addConstraint(Sketcher.Constraint("Perpendicular", 0, 1))
sketch21.addConstraint(Sketcher.Constraint("Perpendicular", 1, 2))
sketch21.addConstraint(Sketcher.Constraint("Perpendicular", 2, 3))
sketch21.addConstraint(Sketcher.Constraint("Angle", 0, Q("-60 deg")))
sketch21.addConstraint(Sketcher.Constraint("Distance", 0, Q("14 mm")))
sketch21.addConstraint(Sketcher.Constraint("Distance", 1, Q("18 mm")))
sketch21.addConstraint(Sketcher.Constraint("DistanceX", -1, 1, 0, 2, Q("15.624356 mm")))
sketch21.addConstraint(Sketcher.Constraint("DistanceY", -1, 1, 0, 2, Q("0.937822 mm")))
pocket20 = body.newObject("PartDesign::Pocket", "Pocket019")
pocket20.Profile = sketch21
pocket20.Type = "UpToFirst"
doc.recompute()

fillet3 = body.newObject("PartDesign::Fillet", "Fillet002")
fillet3.Base = (pocket20, edges_at(pocket20, [
    (8.624, 13.062, 2.5),
    (24.213, 22.062, 2.5),
    (31.213, 9.938, 2.5),
    (15.624, 0.938, 2.5),
    (-15.624, 0.938, 2.5),
    (-31.213, 9.938, 2.5),
    (-24.213, 22.062, 2.5),
    (-8.624, 13.062, 2.5),
    (7, -14, 2.5),
    (7, -32, 2.5),
    (-7, -32, 2.5),
    (-7, -14, 2.5),
]))
fillet3.Radius = 3

doc.recompute()
